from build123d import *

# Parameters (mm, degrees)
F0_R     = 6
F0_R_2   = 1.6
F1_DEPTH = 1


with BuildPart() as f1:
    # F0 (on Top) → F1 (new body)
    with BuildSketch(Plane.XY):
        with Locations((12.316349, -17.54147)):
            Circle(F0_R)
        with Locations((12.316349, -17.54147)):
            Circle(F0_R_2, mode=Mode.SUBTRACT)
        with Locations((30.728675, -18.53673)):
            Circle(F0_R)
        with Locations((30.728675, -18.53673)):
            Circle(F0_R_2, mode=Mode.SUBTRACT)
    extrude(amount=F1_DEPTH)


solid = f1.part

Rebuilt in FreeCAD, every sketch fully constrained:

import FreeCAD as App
import Part
import Sketcher

doc = App.newDocument("Part")
body = doc.addObject("PartDesign::Body", "Body")
body.AllowCompound = True

# Sketch on XY plane
sketch1 = doc.addObject("Sketcher::SketchObject", "Sketch")
body.addObject(sketch1)
sketch1.AttachmentSupport = (doc.XY_Plane, [""])
sketch1.MapMode = "FlatFace"
sketch1.addGeometry(Part.Circle(App.Vector(12.3, -17.5, 0), App.Vector(0, 0, 1), 6), False)
sketch1.addGeometry(Part.Circle(App.Vector(12.3, -17.5, 0), App.Vector(0, 0, 1), 1.6), False)
sketch1.addGeometry(Part.Circle(App.Vector(30.7, -18.5, 0), App.Vector(0, 0, 1), 6), False)
sketch1.addGeometry(Part.Circle(App.Vector(30.7, -18.5, 0), App.Vector(0, 0, 1), 1.6), False)
sketch1.addConstraint(Sketcher.Constraint("Coincident", 1, 3, 0, 3))
sketch1.addConstraint(Sketcher.Constraint("Coincident", 3, 3, 2, 3))
sketch1.addConstraint(Sketcher.Constraint("Equal", 0, 2))
sketch1.addConstraint(Sketcher.Constraint("Equal", 1, 3))
sketch1.addConstraint(Sketcher.Constraint("Diameter", 0, 12.0))
sketch1.addConstraint(Sketcher.Constraint("Diameter", 1, 3.2))
sketch1.addConstraint(Sketcher.Constraint("DistanceX", -1, 1, 0, 3, 12.316349))
sketch1.addConstraint(Sketcher.Constraint("DistanceY", 0, 3, -1, 1, 17.54147))
sketch1.addConstraint(Sketcher.Constraint("DistanceY", 2, 3, -1, 1, 18.53673))
sketch1.addConstraint(Sketcher.Constraint("DistanceX", -1, 1, 2, 3, 30.728675))
pad1 = doc.addObject("PartDesign::Pad", "Pad")
body.addObject(pad1)
pad1.Profile = sketch1
pad1.Length = 1

doc.recompute()
